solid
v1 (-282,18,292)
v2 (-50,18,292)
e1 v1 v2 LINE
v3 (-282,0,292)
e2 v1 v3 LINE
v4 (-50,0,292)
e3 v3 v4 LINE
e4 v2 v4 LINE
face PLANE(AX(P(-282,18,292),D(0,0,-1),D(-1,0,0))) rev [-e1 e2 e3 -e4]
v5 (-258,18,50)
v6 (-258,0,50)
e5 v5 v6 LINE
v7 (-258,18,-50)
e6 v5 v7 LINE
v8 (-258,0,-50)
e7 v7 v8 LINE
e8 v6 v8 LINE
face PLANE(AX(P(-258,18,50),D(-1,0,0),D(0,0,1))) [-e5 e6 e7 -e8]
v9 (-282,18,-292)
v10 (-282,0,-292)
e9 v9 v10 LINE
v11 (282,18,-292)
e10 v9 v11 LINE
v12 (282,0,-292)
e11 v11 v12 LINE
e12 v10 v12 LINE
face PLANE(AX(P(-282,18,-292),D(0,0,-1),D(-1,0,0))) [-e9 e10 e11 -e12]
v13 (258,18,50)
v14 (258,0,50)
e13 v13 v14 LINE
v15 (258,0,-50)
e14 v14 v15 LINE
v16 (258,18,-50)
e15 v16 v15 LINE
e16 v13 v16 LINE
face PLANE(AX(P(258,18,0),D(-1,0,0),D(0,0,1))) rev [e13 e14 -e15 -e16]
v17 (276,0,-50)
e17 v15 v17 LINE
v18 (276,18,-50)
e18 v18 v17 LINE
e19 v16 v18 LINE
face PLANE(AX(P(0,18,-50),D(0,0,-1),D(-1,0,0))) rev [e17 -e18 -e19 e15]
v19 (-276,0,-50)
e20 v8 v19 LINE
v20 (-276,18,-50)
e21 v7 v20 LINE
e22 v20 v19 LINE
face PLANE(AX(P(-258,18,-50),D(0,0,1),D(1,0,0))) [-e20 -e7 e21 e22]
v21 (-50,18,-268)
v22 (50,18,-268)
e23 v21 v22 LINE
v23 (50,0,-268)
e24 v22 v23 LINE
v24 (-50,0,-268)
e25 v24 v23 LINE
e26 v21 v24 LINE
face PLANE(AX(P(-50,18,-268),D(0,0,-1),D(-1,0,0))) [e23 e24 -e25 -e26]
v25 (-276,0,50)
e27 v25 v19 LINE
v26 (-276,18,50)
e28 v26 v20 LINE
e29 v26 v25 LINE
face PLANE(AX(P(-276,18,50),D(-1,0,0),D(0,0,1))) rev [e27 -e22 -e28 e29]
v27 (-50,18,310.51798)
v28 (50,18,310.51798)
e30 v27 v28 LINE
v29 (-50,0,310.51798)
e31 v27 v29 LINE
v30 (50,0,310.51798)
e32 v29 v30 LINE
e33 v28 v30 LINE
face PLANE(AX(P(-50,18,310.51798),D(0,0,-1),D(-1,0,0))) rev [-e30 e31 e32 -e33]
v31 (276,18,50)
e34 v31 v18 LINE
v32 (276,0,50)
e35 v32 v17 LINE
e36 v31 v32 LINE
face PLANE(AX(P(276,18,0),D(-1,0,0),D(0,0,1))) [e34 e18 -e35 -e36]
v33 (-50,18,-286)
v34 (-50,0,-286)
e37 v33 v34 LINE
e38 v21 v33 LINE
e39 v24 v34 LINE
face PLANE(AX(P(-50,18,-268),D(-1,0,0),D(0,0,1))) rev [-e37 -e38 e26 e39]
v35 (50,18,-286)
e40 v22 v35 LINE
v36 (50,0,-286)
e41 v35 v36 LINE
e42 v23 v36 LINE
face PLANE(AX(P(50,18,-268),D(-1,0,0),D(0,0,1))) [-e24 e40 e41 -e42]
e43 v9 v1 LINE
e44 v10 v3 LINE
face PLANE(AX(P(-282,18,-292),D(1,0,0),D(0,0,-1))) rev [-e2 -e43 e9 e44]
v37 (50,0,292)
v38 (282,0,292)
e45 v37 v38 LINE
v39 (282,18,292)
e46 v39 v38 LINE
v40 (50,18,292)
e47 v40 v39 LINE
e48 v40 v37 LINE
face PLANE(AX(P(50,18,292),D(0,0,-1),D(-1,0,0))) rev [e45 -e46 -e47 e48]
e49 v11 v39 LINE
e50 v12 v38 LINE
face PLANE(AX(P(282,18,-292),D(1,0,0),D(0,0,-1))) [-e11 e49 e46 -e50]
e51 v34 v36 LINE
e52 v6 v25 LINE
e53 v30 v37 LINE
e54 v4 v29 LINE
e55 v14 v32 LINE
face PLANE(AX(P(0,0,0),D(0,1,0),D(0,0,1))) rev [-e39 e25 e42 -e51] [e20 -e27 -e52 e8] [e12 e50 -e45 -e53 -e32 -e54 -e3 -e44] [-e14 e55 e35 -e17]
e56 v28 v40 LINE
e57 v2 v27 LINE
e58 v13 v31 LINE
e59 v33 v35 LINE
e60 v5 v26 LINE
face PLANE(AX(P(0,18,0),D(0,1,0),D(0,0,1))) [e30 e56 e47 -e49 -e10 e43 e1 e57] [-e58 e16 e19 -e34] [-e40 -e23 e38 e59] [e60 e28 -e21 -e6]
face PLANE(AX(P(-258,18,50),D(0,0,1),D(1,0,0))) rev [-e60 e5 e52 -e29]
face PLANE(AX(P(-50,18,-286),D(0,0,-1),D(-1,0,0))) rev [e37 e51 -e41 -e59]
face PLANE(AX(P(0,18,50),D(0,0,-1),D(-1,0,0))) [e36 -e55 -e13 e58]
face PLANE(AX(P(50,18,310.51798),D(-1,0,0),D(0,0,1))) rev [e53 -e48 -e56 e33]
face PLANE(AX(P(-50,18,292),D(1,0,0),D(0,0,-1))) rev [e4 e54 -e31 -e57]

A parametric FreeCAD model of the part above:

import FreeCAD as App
import Part
import Sketcher
Q = App.Units.Quantity

doc = App.newDocument("Part")
body = doc.addObject("PartDesign::Body", "Body")

# Sketch on XZ plane
sketch1 = body.newObject("Sketcher::SketchObject", "Sketch")
sketch1.AttachmentSupport = (doc.getObject("XZ_Plane"), [""])
sketch1.MapMode = "FlatFace"
sketch1.addGeometry([
    Part.LineSegment(App.Vector(282, -292, 0), App.Vector(-282, -292, 0)),  # 0
    Part.LineSegment(App.Vector(-282, -292, 0), App.Vector(-282, 292, 0)),  # 1
    Part.LineSegment(App.Vector(-282, 292, 0), App.Vector(-50, 292, 0)),  # 2
    Part.LineSegment(App.Vector(-50, 292, 0), App.Vector(-50, 311, 0)),  # 3
    Part.LineSegment(App.Vector(-50, 311, 0), App.Vector(50, 311, 0)),  # 4
    Part.LineSegment(App.Vector(50, 311, 0), App.Vector(50, 292, 0)),  # 5
    Part.LineSegment(App.Vector(50, 292, 0), App.Vector(282, 292, 0)),  # 6
    Part.LineSegment(App.Vector(282, 292, 0), App.Vector(282, -292, 0)),  # 7
], False)
sketch1.addConstraint([
    Sketcher.Constraint("Coincident", 0, 2, 1, 1),
    Sketcher.Constraint("Coincident", 1, 2, 2, 1),
    Sketcher.Constraint("Coincident", 2, 2, 3, 1),
    Sketcher.Constraint("Coincident", 3, 2, 4, 1),
    Sketcher.Constraint("Coincident", 4, 2, 5, 1),
    Sketcher.Constraint("Coincident", 5, 2, 6, 1),
    Sketcher.Constraint("Coincident", 6, 2, 7, 1),
    Sketcher.Constraint("Coincident", 7, 2, 0, 1),
    Sketcher.Constraint("Horizontal", 0),
    Sketcher.Constraint("Vertical", 1),
    Sketcher.Constraint("Horizontal", 2),
    Sketcher.Constraint("Vertical", 3),
    Sketcher.Constraint("Horizontal", 4),
    Sketcher.Constraint("Vertical", 5),
    Sketcher.Constraint("Horizontal", 6),
    Sketcher.Constraint("Vertical", 7),
    Sketcher.Constraint("Symmetric", 0, 2, 6, 2, -1, 1),
    Sketcher.Constraint("Symmetric", 2, 2, 5, 2, -2),
    Sketcher.Constraint("DistanceX", 0, 2, 0, 1, Q("564 mm")),
    Sketcher.Constraint("DistanceX", 2, 1, 2, 2, Q("232 mm")),
    Sketcher.Constraint("DistanceY", 1, 1, 1, 2, Q("584 mm")),
    Sketcher.Constraint("DistanceY", 3, 1, 3, 2, Q("18.51798 mm")),
])
pad1 = body.newObject("PartDesign::Pad", "Pad")
pad1.Profile = sketch1
pad1.Length = 18
pad1.Reversed = True

# Sketch on XZ plane
sketch2 = body.newObject("Sketcher::SketchObject", "Sketch001")
sketch2.AttachmentSupport = (doc.getObject("XZ_Plane"), [""])
sketch2.MapMode = "FlatFace"
sketch2.addGeometry([
    Part.LineSegment(App.Vector(258, 50, 0), App.Vector(258, -50, 0)),  # 0
    Part.LineSegment(App.Vector(258, -50, 0), App.Vector(276, -50, 0)),  # 1
    Part.LineSegment(App.Vector(276, -50, 0), App.Vector(276, 50, 0)),  # 2
    Part.LineSegment(App.Vector(276, 50, 0), App.Vector(258, 50, 0)),  # 3
    Part.LineSegment(App.Vector(-276, 50, 0), App.Vector(-276, -50, 0)),  # 4
    Part.LineSegment(App.Vector(-276, -50, 0), App.Vector(-258, -50, 0)),  # 5
    Part.LineSegment(App.Vector(-258, -50, 0), App.Vector(-258, 50, 0)),  # 6
    Part.LineSegment(App.Vector(-258, 50, 0), App.Vector(-276, 50, 0)),  # 7
], False)
sketch2.addConstraint([
    Sketcher.Constraint("Coincident", 0, 2, 1, 1),
    Sketcher.Constraint("Coincident", 1, 2, 2, 1),
    Sketcher.Constraint("Coincident", 2, 2, 3, 1),
    Sketcher.Constraint("Coincident", 3, 2, 0, 1),
    Sketcher.Constraint("Coincident", 4, 2, 5, 1),
    Sketcher.Constraint("Coincident", 5, 2, 6, 1),
    Sketcher.Constraint("Coincident", 6, 2, 7, 1),
    Sketcher.Constraint("Coincident", 7, 2, 4, 1),
    Sketcher.Constraint("Vertical", 0),
    Sketcher.Constraint("Horizontal", 1),
    Sketcher.Constraint("Vertical", 2),
    Sketcher.Constraint("Horizontal", 3),
    Sketcher.Constraint("Vertical", 4),
    Sketcher.Constraint("Horizontal", 5),
    Sketcher.Constraint("Vertical", 6),
    Sketcher.Constraint("Horizontal", 7),
    Sketcher.Constraint("Symmetric", 2, 2, 4, 2, -1, 1),
    Sketcher.Constraint("Symmetric", 0, 2, 6, 2, -1, 1),
    Sketcher.Constraint("Horizontal", 1, 2, 4, 2),
    Sketcher.Constraint("DistanceX", 1, 1, 1, 2, Q("18 mm")),
    Sketcher.Constraint("DistanceY", 0, 2, 0, 1, Q("100 mm")),
    Sketcher.Constraint("DistanceX", -1, 1, 0, 2, Q("258 mm")),
])
pocket1 = body.newObject("PartDesign::Pocket", "Pocket")
pocket1.Profile = sketch2
pocket1.Length = 18

# Sketch on XZ plane
sketch3 = body.newObject("Sketcher::SketchObject", "Sketch002")
sketch3.AttachmentSupport = (doc.getObject("XZ_Plane"), [""])
sketch3.MapMode = "FlatFace"
sketch3.addGeometry([
    Part.LineSegment(App.Vector(-50, -268, 0), App.Vector(-50, -286, 0)),
    Part.LineSegment(App.Vector(-50, -286, 0), App.Vector(50, -286, 0)),
    Part.LineSegment(App.Vector(50, -286, 0), App.Vector(50, -268, 0)),
    Part.LineSegment(App.Vector(50, -268, 0), App.Vector(-50, -268, 0)),
], False)
sketch3.addConstraint([
    Sketcher.Constraint("Coincident", 0, 2, 1, 1),
    Sketcher.Constraint("Coincident", 1, 2, 2, 1),
    Sketcher.Constraint("Coincident", 2, 2, 3, 1),
    Sketcher.Constraint("Coincident", 3, 2, 0, 1),
    Sketcher.Constraint("Vertical", 0),
    Sketcher.Constraint("Horizontal", 1),
    Sketcher.Constraint("Vertical", 2),
    Sketcher.Constraint("Horizontal", 3),
    Sketcher.Constraint("DistanceX", 1, 1, 1, 2, Q("100 mm")),
    Sketcher.Constraint("DistanceY", 0, 2, 0, 1, Q("18 mm")),
    Sketcher.Constraint("DistanceX", 0, 2, -1, 1, Q("50 mm")),
    Sketcher.Constraint("DistanceY", 0, 2, -1, 1, Q("286 mm")),
])
pocket2 = body.newObject("PartDesign::Pocket", "Pocket001")
pocket2.Profile = sketch3
pocket2.Length = 18

doc.recompute()
